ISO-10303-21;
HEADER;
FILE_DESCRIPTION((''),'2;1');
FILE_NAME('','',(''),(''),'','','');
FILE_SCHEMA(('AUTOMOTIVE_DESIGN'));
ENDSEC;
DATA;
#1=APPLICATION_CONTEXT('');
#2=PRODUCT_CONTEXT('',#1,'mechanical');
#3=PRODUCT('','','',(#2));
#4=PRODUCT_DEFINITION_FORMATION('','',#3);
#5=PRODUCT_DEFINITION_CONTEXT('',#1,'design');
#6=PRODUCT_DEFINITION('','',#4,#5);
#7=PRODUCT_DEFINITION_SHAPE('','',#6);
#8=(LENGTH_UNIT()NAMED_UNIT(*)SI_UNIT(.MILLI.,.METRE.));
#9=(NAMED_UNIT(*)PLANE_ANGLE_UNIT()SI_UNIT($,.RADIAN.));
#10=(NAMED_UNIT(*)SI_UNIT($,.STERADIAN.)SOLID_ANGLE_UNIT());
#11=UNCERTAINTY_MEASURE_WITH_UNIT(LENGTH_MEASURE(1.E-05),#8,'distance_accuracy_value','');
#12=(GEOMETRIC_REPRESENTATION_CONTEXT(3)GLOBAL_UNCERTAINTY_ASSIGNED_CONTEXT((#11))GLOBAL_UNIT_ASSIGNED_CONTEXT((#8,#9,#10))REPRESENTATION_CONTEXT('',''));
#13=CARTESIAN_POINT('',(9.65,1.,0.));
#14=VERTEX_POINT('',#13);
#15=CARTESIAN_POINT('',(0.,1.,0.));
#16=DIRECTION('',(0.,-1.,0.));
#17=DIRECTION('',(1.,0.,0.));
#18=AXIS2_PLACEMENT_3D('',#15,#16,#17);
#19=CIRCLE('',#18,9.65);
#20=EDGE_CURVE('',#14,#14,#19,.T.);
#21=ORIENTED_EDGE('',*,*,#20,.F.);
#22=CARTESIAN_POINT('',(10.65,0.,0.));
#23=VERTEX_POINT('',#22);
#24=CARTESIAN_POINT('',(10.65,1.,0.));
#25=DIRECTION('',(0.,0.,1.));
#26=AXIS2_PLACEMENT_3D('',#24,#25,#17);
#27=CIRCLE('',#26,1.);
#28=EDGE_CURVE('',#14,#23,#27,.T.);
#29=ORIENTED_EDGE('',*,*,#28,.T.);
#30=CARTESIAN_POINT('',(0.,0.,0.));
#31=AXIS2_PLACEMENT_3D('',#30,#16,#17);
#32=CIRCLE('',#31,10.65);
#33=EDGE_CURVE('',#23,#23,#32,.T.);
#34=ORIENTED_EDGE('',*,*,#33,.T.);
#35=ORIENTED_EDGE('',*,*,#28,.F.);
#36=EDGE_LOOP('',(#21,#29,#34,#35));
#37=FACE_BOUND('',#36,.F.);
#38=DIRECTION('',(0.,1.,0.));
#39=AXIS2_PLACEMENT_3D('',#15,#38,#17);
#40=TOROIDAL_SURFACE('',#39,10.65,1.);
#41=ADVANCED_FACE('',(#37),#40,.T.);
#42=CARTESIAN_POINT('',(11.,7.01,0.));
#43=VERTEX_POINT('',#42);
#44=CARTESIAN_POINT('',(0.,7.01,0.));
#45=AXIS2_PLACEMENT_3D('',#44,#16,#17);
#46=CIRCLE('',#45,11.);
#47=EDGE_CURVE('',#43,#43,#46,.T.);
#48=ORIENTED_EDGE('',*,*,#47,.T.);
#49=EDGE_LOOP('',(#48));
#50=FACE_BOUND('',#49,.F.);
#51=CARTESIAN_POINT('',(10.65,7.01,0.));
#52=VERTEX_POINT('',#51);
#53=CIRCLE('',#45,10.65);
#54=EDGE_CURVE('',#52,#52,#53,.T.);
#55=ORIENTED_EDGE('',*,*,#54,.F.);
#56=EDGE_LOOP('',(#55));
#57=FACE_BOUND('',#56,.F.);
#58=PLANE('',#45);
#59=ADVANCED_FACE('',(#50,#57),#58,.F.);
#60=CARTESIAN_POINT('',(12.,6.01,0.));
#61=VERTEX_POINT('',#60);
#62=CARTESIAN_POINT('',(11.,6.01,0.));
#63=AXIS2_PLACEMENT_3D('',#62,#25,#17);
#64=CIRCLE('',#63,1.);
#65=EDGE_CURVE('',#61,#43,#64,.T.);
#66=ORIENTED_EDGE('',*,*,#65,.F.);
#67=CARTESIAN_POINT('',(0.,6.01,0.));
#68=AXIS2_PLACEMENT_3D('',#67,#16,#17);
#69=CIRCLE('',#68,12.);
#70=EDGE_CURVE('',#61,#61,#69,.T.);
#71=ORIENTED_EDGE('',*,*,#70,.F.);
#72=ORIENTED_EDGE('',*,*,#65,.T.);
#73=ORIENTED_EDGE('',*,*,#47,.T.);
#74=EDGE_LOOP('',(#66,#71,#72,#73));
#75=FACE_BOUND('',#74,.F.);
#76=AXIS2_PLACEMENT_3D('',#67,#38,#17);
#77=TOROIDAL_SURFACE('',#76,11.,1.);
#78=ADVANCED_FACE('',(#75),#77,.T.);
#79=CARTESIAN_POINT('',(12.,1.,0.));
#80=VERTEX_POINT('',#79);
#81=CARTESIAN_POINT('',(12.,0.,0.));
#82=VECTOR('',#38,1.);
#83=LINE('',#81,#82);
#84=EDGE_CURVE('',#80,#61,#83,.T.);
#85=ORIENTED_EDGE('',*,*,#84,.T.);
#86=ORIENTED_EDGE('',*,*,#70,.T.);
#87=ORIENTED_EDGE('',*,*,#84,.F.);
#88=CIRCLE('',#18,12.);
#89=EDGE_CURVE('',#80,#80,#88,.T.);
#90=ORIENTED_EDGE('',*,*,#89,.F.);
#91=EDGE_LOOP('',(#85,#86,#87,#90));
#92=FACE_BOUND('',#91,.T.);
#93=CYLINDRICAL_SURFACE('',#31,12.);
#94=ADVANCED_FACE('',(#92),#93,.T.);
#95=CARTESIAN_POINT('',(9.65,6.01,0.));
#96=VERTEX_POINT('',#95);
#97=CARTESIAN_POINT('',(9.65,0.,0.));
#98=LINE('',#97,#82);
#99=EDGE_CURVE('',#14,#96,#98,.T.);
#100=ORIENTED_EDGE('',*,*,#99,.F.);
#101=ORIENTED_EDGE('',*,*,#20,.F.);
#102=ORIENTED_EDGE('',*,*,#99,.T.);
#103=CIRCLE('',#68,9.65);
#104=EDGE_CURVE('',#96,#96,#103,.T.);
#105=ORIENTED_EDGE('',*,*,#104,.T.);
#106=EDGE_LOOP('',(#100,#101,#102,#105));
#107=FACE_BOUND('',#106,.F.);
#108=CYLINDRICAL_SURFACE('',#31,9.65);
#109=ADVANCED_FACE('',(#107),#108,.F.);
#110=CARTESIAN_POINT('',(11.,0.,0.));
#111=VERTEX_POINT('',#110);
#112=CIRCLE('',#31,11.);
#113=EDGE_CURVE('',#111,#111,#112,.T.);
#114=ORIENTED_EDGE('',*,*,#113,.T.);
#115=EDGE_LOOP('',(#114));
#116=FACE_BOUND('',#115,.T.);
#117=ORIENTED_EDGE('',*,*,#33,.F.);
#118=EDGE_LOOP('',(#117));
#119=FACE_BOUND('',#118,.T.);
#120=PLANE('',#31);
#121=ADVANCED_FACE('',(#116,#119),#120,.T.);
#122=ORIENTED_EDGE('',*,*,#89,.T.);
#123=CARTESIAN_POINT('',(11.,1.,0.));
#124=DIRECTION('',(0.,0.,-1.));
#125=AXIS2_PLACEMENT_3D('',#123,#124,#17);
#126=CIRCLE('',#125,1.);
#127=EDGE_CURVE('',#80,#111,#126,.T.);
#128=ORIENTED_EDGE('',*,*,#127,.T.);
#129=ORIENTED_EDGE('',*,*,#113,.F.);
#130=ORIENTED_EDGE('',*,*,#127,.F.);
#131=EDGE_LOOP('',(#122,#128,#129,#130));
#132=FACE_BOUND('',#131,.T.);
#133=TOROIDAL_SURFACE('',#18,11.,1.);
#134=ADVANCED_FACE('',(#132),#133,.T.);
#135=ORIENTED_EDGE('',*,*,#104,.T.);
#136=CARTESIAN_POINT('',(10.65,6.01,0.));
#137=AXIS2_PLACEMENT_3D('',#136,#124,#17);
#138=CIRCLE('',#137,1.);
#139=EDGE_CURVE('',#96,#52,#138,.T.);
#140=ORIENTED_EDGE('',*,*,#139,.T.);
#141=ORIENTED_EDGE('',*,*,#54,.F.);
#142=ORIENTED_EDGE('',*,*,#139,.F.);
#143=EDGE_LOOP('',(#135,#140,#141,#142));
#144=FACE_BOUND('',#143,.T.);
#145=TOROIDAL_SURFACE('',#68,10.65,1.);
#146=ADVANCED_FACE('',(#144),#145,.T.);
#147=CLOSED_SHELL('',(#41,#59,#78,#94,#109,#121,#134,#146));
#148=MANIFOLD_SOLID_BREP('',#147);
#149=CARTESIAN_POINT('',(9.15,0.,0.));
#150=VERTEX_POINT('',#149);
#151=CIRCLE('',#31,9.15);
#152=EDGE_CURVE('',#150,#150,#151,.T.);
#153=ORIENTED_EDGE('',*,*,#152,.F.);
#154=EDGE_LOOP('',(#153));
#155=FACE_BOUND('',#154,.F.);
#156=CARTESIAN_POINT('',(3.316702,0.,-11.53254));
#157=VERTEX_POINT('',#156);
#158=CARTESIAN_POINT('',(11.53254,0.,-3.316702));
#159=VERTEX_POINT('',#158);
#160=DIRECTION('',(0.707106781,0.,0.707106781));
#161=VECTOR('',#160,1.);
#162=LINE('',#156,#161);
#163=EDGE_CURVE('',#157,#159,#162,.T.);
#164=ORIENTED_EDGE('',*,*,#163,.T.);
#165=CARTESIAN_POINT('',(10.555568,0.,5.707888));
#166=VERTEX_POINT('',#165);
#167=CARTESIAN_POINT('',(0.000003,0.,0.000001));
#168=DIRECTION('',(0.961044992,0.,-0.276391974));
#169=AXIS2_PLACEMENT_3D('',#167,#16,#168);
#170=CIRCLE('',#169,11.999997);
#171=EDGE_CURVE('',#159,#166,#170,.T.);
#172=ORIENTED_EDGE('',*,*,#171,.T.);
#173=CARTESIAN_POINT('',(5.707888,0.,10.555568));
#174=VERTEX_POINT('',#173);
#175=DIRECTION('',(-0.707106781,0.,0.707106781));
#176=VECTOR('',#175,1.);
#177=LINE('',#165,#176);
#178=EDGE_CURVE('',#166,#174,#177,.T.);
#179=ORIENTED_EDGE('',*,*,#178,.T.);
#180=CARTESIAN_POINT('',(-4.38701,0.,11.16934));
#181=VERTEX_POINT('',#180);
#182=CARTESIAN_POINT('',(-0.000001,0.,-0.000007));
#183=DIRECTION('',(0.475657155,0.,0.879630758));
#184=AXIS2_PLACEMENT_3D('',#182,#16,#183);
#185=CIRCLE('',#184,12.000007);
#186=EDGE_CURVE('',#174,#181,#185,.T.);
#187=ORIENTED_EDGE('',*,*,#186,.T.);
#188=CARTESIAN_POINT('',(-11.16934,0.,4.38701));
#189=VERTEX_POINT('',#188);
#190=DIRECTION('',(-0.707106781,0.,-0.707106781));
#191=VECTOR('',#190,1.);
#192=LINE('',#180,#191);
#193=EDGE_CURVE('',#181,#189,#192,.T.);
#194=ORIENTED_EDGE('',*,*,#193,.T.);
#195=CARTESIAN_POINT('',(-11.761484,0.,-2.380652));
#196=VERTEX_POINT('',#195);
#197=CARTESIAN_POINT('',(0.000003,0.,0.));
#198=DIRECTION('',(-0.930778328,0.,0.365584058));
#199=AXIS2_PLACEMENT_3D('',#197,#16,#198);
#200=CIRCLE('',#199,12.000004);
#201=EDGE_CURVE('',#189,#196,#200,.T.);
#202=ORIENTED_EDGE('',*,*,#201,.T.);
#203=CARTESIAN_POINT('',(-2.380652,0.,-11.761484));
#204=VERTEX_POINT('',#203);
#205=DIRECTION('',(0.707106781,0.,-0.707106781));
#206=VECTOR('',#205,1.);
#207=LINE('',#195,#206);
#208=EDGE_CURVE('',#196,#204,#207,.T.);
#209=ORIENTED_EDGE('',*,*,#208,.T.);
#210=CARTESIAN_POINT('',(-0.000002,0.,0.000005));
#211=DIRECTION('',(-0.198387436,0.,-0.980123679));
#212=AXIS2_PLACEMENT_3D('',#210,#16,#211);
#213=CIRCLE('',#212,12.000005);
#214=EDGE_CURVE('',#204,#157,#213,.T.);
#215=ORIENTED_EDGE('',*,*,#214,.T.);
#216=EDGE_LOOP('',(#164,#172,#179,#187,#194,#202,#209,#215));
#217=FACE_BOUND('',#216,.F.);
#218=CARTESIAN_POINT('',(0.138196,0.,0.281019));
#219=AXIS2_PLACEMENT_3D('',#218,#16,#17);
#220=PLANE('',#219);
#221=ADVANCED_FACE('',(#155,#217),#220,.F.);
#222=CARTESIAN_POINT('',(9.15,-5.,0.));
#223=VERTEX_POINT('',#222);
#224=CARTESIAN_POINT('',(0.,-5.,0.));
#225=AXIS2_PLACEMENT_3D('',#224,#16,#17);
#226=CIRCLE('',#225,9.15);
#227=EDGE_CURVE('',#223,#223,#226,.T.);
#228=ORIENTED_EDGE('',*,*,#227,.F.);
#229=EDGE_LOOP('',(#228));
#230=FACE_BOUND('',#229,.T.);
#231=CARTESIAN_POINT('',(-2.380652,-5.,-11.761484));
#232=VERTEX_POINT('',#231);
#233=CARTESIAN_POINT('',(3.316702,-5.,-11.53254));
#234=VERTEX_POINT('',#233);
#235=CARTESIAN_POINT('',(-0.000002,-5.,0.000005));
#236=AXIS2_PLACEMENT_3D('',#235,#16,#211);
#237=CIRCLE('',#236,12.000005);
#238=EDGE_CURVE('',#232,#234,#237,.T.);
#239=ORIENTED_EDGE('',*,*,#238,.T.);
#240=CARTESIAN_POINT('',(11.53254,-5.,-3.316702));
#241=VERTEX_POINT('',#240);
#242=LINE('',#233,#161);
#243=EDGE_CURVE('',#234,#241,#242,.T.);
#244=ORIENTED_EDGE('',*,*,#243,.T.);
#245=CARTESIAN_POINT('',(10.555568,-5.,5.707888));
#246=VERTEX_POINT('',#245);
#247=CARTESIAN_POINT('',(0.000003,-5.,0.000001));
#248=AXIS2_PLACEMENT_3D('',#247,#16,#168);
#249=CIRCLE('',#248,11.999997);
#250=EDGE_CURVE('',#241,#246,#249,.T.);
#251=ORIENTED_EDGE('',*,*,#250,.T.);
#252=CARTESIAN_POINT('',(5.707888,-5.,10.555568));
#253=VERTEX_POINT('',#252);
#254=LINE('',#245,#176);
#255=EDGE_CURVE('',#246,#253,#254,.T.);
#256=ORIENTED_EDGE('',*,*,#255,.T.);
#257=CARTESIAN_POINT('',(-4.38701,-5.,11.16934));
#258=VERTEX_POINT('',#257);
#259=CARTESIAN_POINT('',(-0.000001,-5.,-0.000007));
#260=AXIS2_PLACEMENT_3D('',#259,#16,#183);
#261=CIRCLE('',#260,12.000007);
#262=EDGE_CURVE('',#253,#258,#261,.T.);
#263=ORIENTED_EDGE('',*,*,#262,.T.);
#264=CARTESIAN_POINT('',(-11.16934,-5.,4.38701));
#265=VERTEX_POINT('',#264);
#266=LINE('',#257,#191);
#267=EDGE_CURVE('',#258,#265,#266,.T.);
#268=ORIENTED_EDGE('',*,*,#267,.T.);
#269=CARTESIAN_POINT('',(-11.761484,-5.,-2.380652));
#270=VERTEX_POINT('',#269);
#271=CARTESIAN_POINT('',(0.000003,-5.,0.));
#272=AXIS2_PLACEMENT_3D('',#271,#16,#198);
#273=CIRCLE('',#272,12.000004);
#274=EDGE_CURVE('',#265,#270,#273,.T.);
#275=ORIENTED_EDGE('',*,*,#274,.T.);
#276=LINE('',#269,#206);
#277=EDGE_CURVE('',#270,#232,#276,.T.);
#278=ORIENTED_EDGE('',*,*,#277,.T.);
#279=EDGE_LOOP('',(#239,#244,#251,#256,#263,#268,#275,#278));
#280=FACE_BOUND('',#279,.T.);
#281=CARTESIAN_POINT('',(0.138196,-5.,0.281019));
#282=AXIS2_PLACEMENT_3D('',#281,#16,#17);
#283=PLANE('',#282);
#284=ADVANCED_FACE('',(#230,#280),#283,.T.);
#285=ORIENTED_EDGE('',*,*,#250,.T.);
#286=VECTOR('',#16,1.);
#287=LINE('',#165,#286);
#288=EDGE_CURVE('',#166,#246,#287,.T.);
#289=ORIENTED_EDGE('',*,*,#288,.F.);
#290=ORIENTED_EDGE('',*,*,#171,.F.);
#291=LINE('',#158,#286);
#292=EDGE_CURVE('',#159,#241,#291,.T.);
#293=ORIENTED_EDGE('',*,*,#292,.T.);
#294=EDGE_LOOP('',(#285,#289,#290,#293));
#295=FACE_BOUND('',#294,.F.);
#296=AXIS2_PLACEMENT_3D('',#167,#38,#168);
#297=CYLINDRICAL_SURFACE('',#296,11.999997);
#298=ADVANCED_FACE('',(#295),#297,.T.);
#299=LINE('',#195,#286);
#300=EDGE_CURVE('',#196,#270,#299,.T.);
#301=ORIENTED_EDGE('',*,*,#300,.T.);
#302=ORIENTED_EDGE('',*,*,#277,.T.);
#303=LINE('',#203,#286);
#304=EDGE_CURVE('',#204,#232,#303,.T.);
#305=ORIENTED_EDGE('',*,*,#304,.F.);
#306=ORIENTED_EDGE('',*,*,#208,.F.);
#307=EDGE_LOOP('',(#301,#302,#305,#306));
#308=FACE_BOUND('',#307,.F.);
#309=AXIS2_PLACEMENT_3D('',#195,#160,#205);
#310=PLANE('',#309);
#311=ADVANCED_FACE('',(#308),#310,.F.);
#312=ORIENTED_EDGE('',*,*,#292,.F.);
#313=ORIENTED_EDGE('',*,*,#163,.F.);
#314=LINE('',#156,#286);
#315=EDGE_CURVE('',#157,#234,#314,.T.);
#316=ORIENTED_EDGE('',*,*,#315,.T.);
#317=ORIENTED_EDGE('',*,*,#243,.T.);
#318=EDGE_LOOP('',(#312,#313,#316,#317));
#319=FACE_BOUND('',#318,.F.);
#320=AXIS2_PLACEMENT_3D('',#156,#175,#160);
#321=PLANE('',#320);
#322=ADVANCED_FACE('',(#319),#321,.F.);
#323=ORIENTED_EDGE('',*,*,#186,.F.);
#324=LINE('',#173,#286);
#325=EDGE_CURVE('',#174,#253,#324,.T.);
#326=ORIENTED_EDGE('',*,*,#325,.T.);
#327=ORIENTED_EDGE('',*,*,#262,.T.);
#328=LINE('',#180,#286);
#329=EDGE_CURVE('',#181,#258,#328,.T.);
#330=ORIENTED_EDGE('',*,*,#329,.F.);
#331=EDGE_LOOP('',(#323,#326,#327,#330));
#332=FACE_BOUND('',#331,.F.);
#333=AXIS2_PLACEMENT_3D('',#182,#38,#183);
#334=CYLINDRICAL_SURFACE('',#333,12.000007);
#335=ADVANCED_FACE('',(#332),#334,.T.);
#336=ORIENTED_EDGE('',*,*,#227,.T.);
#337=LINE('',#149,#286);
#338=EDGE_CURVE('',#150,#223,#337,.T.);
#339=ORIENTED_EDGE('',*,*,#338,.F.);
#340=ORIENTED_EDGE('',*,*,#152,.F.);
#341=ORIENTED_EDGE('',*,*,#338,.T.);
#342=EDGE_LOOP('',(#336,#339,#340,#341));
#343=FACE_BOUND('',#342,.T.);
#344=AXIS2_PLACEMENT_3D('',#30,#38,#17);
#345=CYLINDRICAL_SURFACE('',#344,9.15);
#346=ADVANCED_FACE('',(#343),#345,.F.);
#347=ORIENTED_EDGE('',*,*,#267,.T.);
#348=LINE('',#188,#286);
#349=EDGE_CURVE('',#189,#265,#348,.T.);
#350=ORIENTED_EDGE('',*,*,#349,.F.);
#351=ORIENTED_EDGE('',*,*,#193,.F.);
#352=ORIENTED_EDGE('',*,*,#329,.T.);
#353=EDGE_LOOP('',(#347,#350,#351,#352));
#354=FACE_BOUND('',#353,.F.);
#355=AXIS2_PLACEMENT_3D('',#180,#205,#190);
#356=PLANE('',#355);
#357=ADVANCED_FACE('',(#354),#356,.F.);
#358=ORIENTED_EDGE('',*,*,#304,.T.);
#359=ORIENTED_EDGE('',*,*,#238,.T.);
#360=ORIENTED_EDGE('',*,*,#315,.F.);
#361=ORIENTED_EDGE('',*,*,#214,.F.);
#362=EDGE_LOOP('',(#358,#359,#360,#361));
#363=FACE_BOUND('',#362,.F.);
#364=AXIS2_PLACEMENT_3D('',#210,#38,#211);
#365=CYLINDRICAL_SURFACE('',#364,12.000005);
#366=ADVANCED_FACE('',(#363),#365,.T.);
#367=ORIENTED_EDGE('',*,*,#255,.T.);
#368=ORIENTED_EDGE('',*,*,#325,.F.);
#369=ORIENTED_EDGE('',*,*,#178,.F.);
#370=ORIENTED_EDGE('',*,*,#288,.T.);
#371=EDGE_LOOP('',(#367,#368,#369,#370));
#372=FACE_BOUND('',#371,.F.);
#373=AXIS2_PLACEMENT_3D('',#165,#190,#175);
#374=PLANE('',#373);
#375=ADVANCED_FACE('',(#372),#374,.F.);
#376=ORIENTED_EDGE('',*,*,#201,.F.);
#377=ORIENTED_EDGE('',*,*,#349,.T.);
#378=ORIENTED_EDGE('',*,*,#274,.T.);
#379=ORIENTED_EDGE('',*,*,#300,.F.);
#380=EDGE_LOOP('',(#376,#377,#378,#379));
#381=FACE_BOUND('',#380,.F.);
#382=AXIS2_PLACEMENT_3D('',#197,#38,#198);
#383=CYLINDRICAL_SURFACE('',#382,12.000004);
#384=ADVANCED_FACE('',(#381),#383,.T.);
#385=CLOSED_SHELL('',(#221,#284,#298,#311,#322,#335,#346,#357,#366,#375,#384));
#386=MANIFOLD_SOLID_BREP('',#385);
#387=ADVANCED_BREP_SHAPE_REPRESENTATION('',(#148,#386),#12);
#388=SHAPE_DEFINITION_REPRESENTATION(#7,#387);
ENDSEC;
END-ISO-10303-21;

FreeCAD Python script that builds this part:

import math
import FreeCAD as App
import Part
import Sketcher
from FreeCAD import Vector
Q = App.Units.Quantity


def edges_at(feature, points):
    """Names of the edges that pass closest to the given points."""
    edges = feature.Shape.Edges
    near = lambda p: min(range(len(edges)), key=lambda i: edges[i].distToShape(Part.Vertex(*p))[0])
    return sorted({f"Edge{near(p) + 1}" for p in points})

doc = App.newDocument("Part")
params = doc.addObject("Spreadsheet::Sheet", "Params")
for row, (alias, value) in enumerate([
    ("sketch1_diameter", "24 mm"),
    ("sketch1_diameter2", "19.3 mm"),
    ("pad1_length", "7.01 mm"),
    ("fillet_radius", "1 mm"),
    ("sketch2_diameter", "18.3 mm"),
    ("pad2_length", "5 mm"),
], start=1):
    params.set(f"A{row}", alias)
    params.set(f"B{row}", "=" + value)
    params.setAlias(f"B{row}", alias)

body = doc.addObject("PartDesign::Body", "Body")

# Sketch on XZ plane
sketch1 = body.newObject("Sketcher::SketchObject", "Sketch")
sketch1.AttachmentSupport = (doc.getObject("XZ_Plane"), [""])
sketch1.MapMode = "FlatFace"
sketch1.addGeometry([
    Part.Circle(Vector(0, 0, 0), Vector(0, 0, 1), 12),
    Part.Circle(Vector(0, 0, 0), Vector(0, 0, 1), 10),
], False)
sketch1.addConstraint([
    Sketcher.Constraint("Coincident", 0, 3, -1, 1),
    Sketcher.Constraint("Coincident", 1, 3, -1, 1),
    Sketcher.Constraint("Diameter", 0, Q("24 mm")),
    Sketcher.Constraint("Diameter", 1, Q("19.3 mm")),
])
sketch1.setExpression("Constraints[2]", "Params.sketch1_diameter")
sketch1.setExpression("Constraints[3]", "Params.sketch1_diameter2")
pad1 = body.newObject("PartDesign::Pad", "Pad")
pad1.Profile = sketch1
pad1.setExpression("Length", "Params.pad1_length")
pad1.Reversed = True
doc.recompute()

fillet = body.newObject("PartDesign::Fillet", "Fillet")
fillet.Base = (pad1, edges_at(pad1, [
    (-12, 0, 0),
    (-12, 7.01, 0),
    (-9.65, 0, 0),
    (-9.65, 7.01, 0),
]))
fillet.setExpression("Radius", "Params.fillet_radius")
body2 = doc.addObject("PartDesign::Body", "Body001")

# Sketch on XZ plane
sketch2 = body2.newObject("Sketcher::SketchObject", "Sketch001")
sketch2.AttachmentSupport = (doc.getObject("XZ_Plane001"), [""])
sketch2.MapMode = "FlatFace"
sketch2.addGeometry([
    Part.LineSegment(Vector(-4.38701, 11.16934, 0), Vector(-11.16934, 4.38701, 0)),  # 0
    Part.ArcOfCircle(Part.Circle(Vector(0.000003, 0, 0), Vector(0, 0, 1), 12.000004), math.radians(158.556469), math.radians(191.442686)),  # 1
    Part.LineSegment(Vector(-11.761484, -2.380652, 0), Vector(-2.380652, -11.761484, 0)),  # 2
    Part.ArcOfCircle(Part.Circle(Vector(-0.000002, 0.000005, 0), Vector(0, 0, 1), 12.000005), math.radians(-101.442676), math.radians(-73.955022)),  # 3
    Part.LineSegment(Vector(3.316702, -11.53254, 0), Vector(11.53254, -3.316702, 0)),  # 4
    Part.ArcOfCircle(Part.Circle(Vector(0.000003, 0.000001, 0), Vector(0, 0, 1), 11.999997), math.radians(-16.044984), math.radians(28.40216)),  # 5
    Part.LineSegment(Vector(10.555568, 5.707888, 0), Vector(5.707888, 10.555568, 0)),  # 6
    Part.ArcOfCircle(Part.Circle(Vector(-0.000001, -0.000007, 0), Vector(0, 0, 1), 12.000007), math.radians(61.597854), math.radians(111.44352)),  # 7
    Part.Circle(Vector(0, 0, 0), Vector(0, 0, 1), 9.15),  # 8
], False)
sketch2.addConstraint([
    Sketcher.Constraint("Coincident", 0, 2, 1, 1),
    Sketcher.Constraint("Coincident", 1, 2, 2, 1),
    Sketcher.Constraint("Coincident", 2, 2, 3, 1),
    Sketcher.Constraint("Coincident", 3, 2, 4, 1),
    Sketcher.Constraint("Coincident", 4, 2, 5, 1),
    Sketcher.Constraint("Coincident", 5, 2, 6, 1),
    Sketcher.Constraint("Coincident", 6, 2, 7, 1),
    Sketcher.Constraint("Coincident", 7, 2, 0, 1),
    Sketcher.Constraint("Coincident", 1, 3, -1, 1),
    Sketcher.Constraint("Coincident", 3, 3, -1, 1),
    Sketcher.Constraint("Coincident", 5, 3, -1, 1),
    Sketcher.Constraint("Coincident", 7, 3, -1, 1),
    Sketcher.Constraint("Coincident", 8, 3, -1, 1),
    Sketcher.Constraint("Diameter", 8, Q("18.3 mm")),
    Sketcher.Constraint("Radius", 1, Q("12.000004 mm")),
    Sketcher.Constraint("Radius", 3, Q("12.000005 mm")),
    Sketcher.Constraint("Radius", 5, Q("11.999997 mm")),
    Sketcher.Constraint("Radius", 7, Q("12.000007 mm")),
    Sketcher.Constraint("Distance", 2, Q("13.2665 mm")),
    Sketcher.Constraint("DistanceX", -1, 1, 3, 2, Q("3.316702 mm")),
    Sketcher.Constraint("DistanceY", 4, 2, -1, 1, Q("3.316702 mm")),
    Sketcher.Constraint("DistanceX", 0, 2, -1, 1, Q("11.16934 mm")),
    Sketcher.Constraint("DistanceX", 2, 2, -1, 1, Q("2.380652 mm")),
    Sketcher.Constraint("DistanceX", 7, 2, -1, 1, Q("4.38701 mm")),
    Sketcher.Constraint("DistanceY", 4, 2, 5, 2, Q("9.02459 mm")),
    Sketcher.Constraint("DistanceX", 6, 2, 5, 2, Q("4.84768 mm")),
])
sketch2.setExpression("Constraints[13]", "Params.sketch2_diameter")
pad2 = body2.newObject("PartDesign::Pad", "Pad001")
pad2.Profile = sketch2
pad2.setExpression("Length", "Params.pad2_length")

doc.recompute()
